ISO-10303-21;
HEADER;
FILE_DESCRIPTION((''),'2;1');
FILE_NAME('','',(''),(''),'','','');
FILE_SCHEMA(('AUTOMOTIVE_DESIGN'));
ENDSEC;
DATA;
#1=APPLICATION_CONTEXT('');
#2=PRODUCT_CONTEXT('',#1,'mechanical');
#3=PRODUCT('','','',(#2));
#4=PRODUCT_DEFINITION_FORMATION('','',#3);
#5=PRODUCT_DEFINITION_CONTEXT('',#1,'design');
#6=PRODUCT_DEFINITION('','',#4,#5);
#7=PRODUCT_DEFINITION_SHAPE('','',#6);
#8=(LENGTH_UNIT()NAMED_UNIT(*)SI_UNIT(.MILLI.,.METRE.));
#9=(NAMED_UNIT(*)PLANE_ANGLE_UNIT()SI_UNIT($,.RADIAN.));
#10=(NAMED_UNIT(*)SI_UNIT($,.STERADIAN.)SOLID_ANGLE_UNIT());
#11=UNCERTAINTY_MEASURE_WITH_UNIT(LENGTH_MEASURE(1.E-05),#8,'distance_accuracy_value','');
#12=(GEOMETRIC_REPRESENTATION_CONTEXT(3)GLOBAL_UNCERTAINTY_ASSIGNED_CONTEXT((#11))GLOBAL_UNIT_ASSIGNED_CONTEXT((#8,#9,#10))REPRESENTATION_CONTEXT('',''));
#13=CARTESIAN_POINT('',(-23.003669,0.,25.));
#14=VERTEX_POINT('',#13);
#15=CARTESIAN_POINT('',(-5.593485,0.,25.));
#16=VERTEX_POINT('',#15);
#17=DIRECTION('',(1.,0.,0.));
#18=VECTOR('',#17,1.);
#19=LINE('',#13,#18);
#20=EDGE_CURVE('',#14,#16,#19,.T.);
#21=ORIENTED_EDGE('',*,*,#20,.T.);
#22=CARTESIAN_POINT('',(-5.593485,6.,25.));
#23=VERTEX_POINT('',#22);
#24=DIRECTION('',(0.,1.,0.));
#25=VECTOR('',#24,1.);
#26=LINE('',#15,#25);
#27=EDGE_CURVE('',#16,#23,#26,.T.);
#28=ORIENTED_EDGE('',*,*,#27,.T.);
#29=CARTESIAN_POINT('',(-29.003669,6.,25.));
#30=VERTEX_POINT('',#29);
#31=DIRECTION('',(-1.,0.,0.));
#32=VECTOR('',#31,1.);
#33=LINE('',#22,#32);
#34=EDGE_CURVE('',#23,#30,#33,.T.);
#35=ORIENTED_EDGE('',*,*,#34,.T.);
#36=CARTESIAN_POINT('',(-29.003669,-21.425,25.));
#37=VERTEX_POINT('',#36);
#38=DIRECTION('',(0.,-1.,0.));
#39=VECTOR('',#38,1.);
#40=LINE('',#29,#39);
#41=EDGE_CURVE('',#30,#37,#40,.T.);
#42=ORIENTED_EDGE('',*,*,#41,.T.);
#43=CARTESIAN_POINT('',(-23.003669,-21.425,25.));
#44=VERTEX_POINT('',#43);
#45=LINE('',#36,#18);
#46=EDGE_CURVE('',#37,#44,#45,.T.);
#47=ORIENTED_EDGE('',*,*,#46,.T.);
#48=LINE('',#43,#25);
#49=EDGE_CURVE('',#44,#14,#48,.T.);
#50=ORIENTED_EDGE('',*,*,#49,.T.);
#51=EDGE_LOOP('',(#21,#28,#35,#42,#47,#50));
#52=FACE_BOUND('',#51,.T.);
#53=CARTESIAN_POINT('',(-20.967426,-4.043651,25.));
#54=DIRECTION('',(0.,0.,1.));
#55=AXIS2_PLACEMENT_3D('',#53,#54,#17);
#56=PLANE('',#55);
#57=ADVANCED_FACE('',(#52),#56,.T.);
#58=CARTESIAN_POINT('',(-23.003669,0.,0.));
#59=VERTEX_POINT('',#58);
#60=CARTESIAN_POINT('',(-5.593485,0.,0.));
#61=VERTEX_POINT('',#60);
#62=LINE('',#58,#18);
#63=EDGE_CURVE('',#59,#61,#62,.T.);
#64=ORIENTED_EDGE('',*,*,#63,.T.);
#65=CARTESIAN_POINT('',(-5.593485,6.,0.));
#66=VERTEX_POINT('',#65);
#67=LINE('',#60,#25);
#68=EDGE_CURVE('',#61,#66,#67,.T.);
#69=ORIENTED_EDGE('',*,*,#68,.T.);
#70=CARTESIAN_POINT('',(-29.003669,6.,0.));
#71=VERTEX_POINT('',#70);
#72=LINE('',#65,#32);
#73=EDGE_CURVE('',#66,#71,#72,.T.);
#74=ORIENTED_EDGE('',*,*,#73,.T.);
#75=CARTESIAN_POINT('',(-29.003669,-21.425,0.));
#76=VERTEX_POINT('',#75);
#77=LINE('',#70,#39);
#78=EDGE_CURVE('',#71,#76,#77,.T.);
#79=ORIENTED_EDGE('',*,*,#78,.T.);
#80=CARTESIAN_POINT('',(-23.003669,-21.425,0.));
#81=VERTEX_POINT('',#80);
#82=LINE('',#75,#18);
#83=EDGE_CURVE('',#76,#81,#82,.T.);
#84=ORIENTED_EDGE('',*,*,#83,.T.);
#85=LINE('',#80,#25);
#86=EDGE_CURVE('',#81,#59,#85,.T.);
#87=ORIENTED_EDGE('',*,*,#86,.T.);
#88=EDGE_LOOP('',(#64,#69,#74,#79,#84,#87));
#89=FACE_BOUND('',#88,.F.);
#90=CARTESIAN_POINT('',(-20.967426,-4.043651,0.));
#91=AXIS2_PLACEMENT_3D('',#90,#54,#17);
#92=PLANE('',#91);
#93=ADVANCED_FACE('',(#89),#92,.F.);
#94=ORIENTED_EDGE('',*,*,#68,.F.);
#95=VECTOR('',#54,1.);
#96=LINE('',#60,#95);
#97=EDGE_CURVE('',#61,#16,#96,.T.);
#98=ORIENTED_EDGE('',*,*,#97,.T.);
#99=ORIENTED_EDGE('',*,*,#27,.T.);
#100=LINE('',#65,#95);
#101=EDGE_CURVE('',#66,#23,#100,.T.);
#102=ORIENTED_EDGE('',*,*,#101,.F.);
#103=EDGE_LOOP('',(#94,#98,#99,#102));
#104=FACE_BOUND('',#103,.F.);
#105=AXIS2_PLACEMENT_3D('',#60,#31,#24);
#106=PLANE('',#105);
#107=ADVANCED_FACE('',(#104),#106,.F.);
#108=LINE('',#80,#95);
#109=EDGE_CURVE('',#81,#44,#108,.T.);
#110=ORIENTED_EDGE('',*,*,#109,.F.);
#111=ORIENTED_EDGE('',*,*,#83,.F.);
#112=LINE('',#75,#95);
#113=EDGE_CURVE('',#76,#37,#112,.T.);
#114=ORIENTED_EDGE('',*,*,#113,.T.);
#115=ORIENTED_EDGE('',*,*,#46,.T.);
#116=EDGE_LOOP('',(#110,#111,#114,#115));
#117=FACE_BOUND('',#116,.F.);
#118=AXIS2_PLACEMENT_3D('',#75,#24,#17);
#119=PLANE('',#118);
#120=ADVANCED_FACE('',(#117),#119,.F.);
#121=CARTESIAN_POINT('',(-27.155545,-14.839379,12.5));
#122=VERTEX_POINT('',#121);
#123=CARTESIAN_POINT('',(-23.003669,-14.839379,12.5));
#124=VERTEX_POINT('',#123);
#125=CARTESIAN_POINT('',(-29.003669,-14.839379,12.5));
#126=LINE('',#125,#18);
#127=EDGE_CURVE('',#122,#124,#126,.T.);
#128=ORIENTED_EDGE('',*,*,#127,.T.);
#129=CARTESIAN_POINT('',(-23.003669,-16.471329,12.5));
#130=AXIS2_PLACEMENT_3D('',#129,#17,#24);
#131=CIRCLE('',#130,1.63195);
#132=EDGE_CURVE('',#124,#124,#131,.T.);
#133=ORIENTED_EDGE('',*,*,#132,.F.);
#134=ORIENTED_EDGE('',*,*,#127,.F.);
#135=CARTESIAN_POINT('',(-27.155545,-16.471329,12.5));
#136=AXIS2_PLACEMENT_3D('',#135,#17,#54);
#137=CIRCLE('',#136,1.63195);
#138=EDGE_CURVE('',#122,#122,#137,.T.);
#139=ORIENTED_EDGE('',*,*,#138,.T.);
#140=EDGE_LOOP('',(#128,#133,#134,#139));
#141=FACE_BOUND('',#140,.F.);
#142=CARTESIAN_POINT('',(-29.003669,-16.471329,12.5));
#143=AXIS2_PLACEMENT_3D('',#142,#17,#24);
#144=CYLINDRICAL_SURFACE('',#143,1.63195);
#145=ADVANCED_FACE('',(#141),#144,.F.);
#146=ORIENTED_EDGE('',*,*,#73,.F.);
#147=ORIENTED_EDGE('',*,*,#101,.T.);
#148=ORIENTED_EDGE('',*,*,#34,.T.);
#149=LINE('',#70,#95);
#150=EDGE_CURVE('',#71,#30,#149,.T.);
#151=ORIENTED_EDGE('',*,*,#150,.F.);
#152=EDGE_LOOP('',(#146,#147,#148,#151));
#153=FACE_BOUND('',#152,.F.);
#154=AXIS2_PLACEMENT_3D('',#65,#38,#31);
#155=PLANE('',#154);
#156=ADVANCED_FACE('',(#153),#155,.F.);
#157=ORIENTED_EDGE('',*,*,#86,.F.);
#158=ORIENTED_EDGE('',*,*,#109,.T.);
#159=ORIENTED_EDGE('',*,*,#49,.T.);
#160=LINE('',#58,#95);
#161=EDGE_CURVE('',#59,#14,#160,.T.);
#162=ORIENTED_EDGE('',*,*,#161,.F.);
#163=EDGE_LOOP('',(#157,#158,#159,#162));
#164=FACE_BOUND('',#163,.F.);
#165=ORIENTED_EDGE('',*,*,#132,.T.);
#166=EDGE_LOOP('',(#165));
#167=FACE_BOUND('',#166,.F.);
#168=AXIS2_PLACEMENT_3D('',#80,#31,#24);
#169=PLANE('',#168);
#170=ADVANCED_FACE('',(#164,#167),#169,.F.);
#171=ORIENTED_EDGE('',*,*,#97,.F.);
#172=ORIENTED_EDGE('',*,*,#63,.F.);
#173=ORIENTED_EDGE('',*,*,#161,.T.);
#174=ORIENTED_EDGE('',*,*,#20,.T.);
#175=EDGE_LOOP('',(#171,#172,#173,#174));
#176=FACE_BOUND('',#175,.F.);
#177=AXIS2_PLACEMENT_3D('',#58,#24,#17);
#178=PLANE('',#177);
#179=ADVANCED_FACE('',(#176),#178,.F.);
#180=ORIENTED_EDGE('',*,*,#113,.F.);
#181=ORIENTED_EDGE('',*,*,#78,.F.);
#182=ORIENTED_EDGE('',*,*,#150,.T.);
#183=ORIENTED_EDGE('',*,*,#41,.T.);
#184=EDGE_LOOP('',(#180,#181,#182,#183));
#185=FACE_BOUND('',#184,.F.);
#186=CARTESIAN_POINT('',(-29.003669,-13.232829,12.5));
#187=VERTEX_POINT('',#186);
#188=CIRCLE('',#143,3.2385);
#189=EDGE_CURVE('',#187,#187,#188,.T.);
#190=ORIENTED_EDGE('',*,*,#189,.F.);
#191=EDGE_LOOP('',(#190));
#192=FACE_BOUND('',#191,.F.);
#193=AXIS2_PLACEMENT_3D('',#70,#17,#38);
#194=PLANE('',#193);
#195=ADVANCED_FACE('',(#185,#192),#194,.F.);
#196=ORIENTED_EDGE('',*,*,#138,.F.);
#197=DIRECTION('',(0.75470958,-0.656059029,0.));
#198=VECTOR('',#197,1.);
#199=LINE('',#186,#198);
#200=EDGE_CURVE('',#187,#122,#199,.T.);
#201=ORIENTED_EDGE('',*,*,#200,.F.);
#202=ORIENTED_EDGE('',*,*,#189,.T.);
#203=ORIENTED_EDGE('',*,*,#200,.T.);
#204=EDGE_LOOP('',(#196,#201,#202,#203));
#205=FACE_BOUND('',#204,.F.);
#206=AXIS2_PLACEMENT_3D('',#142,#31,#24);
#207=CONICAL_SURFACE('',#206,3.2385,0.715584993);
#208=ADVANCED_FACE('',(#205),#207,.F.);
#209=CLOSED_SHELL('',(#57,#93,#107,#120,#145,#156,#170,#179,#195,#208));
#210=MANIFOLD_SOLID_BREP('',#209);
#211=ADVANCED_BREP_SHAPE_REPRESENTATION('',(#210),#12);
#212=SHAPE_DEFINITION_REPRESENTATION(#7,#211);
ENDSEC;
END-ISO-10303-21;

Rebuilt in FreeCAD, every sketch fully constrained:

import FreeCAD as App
import Part
import Sketcher
Q = App.Units.Quantity

doc = App.newDocument("Part")
body = doc.addObject("PartDesign::Body", "Body")

# Sketch on XY plane
sketch1 = body.newObject("Sketcher::SketchObject", "Sketch")
sketch1.AttachmentSupport = (doc.getObject("XY_Plane"), [""])
sketch1.MapMode = "FlatFace"
sketch1.addGeometry([
    Part.LineSegment(App.Vector(-29, 6, 0), App.Vector(-29, -21, 0)),  # 0
    Part.LineSegment(App.Vector(-29, -21, 0), App.Vector(-23, -21, 0)),  # 1
    Part.LineSegment(App.Vector(-23, -21, 0), App.Vector(-23, 0, 0)),  # 2
    Part.LineSegment(App.Vector(-23, 0, 0), App.Vector(-6, 0, 0)),  # 3
    Part.LineSegment(App.Vector(-6, 0, 0), App.Vector(-6, 6, 0)),  # 4
    Part.LineSegment(App.Vector(-6, 6, 0), App.Vector(-29, 6, 0)),  # 5
], False)
sketch1.addConstraint([
    Sketcher.Constraint("Coincident", 0, 2, 1, 1),
    Sketcher.Constraint("Coincident", 1, 2, 2, 1),
    Sketcher.Constraint("Coincident", 2, 2, 3, 1),
    Sketcher.Constraint("Coincident", 3, 2, 4, 1),
    Sketcher.Constraint("Coincident", 4, 2, 5, 1),
    Sketcher.Constraint("Coincident", 5, 2, 0, 1),
    Sketcher.Constraint("Vertical", 0),
    Sketcher.Constraint("Horizontal", 1),
    Sketcher.Constraint("Vertical", 2),
    Sketcher.Constraint("Horizontal", 3),
    Sketcher.Constraint("Vertical", 4),
    Sketcher.Constraint("Horizontal", 5),
    Sketcher.Constraint("PointOnObject", 2, 2, -1),
    Sketcher.Constraint("Equal", 1, 4),
    Sketcher.Constraint("DistanceX", 1, 1, 1, 2, Q("6 mm")),
    Sketcher.Constraint("DistanceY", 0, 2, 0, 1, Q("27.425 mm")),
    Sketcher.Constraint("DistanceX", 3, 1, 3, 2, Q("17.410184 mm")),
    Sketcher.Constraint("DistanceX", 0, 2, -1, 1, Q("29.003669 mm")),
])
pad1 = body.newObject("PartDesign::Pad", "Pad")
pad1.Profile = sketch1
pad1.Length = 25

# Sketch on YZ plane
sketch2 = body.newObject("Sketcher::SketchObject", "Sketch001")
sketch2.AttachmentSupport = (doc.getObject("YZ_Plane"), [""])
sketch2.MapMode = "FlatFace"
sketch2.AttachmentOffset = App.Placement(App.Vector(0, 0, -29.003669), App.Rotation())
sketch2.addGeometry(Part.Circle(App.Vector(-16.5, 12.5, 0), App.Vector(0, 0, 1), 1.6), False)
sketch2.addConstraint([
    Sketcher.Constraint("Diameter", 0, Q("3.2639 mm")),
    Sketcher.Constraint("DistanceY", -1, 1, 0, 3, Q("12.5 mm")),
    Sketcher.Constraint("DistanceX", 0, 3, -1, 1, Q("16.471329 mm")),
])
doc.recompute()
hole = body.newObject("PartDesign::Hole", "Hole")
hole.Profile = sketch2
hole.ThreadType = "None"
hole.Diameter = 3.2639
hole.DepthType = "ThroughAll"
hole.HoleCutType = "Countersink"
hole.HoleCutDiameter = 6.477
hole.HoleCutCountersinkAngle = 82
hole.Reversed = True

doc.recompute()
